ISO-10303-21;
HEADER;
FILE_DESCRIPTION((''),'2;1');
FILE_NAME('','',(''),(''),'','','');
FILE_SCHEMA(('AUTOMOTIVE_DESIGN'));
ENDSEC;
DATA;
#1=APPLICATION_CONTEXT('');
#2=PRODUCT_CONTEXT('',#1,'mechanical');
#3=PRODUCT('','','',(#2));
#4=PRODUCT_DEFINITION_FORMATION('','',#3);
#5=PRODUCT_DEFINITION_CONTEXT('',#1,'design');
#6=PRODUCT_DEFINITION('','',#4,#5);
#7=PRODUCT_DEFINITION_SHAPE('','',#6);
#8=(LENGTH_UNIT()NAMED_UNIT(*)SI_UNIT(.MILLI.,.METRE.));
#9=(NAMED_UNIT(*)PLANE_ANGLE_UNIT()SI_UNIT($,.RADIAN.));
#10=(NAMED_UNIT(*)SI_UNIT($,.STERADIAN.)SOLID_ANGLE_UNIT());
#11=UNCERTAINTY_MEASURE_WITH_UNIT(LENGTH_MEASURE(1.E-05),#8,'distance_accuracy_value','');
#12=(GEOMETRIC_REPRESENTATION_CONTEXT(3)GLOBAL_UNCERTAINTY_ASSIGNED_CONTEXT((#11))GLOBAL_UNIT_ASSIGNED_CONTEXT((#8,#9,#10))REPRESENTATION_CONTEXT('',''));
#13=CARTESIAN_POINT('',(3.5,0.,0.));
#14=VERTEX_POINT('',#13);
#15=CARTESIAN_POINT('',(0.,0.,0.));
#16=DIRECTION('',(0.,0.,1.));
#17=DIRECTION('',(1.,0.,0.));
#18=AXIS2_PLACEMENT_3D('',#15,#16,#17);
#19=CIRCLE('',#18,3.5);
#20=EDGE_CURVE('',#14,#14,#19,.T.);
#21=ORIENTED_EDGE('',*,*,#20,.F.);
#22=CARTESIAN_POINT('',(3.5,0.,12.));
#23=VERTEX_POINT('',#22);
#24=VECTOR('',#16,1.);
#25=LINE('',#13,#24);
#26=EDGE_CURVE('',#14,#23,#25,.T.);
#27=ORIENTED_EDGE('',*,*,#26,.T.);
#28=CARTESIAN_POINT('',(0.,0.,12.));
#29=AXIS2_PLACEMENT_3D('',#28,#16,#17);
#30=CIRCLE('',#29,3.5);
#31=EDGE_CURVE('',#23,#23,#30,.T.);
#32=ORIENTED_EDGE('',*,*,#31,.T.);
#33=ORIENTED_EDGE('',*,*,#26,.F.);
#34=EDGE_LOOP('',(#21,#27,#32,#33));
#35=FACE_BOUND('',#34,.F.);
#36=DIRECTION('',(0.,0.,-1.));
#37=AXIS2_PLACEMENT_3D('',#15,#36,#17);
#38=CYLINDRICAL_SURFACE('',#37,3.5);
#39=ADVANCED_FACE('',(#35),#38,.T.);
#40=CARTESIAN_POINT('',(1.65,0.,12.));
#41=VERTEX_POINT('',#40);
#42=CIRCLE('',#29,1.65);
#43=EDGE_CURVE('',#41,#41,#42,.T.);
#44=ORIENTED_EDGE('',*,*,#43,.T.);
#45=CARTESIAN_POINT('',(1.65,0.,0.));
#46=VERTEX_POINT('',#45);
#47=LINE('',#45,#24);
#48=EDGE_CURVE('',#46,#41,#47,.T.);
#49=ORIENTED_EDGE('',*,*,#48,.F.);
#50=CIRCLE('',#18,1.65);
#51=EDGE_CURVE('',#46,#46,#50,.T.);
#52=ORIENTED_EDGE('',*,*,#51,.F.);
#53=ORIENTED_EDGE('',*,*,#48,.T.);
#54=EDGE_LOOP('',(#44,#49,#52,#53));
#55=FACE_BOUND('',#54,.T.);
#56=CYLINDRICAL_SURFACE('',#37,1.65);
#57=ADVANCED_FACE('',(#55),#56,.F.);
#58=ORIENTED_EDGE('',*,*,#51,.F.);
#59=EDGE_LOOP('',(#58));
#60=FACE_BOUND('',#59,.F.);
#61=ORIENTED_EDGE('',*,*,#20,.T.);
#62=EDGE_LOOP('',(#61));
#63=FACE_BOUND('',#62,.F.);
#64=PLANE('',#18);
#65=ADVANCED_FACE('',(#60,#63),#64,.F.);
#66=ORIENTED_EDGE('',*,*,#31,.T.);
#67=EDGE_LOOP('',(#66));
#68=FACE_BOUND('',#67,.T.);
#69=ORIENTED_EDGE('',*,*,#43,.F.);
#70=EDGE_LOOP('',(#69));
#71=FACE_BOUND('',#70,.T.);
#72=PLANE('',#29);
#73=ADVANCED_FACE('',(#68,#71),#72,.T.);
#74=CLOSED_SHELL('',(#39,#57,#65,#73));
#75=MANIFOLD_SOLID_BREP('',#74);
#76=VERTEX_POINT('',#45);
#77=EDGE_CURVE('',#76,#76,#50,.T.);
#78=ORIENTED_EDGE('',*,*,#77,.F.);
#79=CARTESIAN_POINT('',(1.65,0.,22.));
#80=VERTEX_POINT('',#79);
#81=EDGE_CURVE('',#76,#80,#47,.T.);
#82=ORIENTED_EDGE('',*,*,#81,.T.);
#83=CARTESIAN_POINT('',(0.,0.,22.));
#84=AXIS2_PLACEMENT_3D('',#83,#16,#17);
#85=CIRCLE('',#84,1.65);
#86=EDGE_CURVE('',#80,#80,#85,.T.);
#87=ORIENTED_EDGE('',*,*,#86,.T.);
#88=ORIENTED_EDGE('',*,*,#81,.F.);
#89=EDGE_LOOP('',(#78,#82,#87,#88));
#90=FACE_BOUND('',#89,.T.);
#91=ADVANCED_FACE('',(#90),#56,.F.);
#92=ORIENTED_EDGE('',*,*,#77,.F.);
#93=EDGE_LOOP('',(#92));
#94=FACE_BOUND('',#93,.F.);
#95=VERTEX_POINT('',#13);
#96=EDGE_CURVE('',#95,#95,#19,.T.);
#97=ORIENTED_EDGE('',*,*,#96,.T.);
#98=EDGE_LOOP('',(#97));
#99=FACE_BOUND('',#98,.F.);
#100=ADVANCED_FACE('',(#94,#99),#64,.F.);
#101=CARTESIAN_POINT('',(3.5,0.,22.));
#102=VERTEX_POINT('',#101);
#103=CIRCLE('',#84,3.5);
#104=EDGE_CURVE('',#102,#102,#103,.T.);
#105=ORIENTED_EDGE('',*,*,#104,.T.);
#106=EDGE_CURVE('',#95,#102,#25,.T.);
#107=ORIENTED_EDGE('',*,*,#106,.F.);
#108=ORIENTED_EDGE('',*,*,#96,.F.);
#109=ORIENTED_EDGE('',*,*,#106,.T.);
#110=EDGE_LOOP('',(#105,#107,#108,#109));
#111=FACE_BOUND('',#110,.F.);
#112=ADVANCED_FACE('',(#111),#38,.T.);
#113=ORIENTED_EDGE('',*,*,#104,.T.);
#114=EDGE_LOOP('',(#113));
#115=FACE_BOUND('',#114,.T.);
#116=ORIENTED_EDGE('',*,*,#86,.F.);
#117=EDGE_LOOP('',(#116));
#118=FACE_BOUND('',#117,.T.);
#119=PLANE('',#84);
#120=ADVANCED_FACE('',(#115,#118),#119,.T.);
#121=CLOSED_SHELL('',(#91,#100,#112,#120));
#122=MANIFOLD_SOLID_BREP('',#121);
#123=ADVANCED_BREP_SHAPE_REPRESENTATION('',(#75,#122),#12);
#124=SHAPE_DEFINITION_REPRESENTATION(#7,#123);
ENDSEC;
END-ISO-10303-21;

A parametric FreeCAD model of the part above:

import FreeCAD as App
import Part
import Sketcher

doc = App.newDocument("Part")
params = doc.addObject("Spreadsheet::Sheet", "Params")
for row, (alias, value) in enumerate([
    ("sketch1_diameter", "7 mm"),
    ("sketch1_diameter2", "3.3 mm"),
    ("pad1_length", "22 mm"),
    ("sketch2_diameter", "7 mm"),
    ("sketch2_diameter2", "3.3 mm"),
    ("pad2_length", "12 mm"),
], start=1):
    params.set(f"A{row}", alias)
    params.set(f"B{row}", "=" + value)
    params.setAlias(f"B{row}", alias)

body = doc.addObject("PartDesign::Body", "Body")

sketch1 = body.newObject("Sketcher::SketchObject", "Sketch")
sketch1.AttachmentSupport = (doc.getObject("XY_Plane"), [""])
sketch1.MapMode = "FlatFace"
sketch1.addGeometry(Part.Circle(App.Vector(0, 0, 0), App.Vector(0, 0, 1), 3.5), False)
sketch1.addGeometry(Part.Circle(App.Vector(0, 0, 0), App.Vector(0, 0, 1), 1.6), False)
sketch1.addConstraint(Sketcher.Constraint("Coincident", 0, 3, -1, 1))
sketch1.addConstraint(Sketcher.Constraint("Coincident", 1, 3, -1, 1))
sketch1.addConstraint(Sketcher.Constraint("Diameter", 0, 7.0))
sketch1.addConstraint(Sketcher.Constraint("Diameter", 1, 3.3))
sketch1.setExpression("Constraints[2]", "Params.sketch1_diameter")
sketch1.setExpression("Constraints[3]", "Params.sketch1_diameter2")
pad1 = body.newObject("PartDesign::Pad", "Pad")
pad1.Profile = sketch1
pad1.setExpression("Length", "Params.pad1_length")
body2 = doc.addObject("PartDesign::Body", "Body001")

sketch2 = body2.newObject("Sketcher::SketchObject", "Sketch001")
sketch2.AttachmentSupport = (doc.getObject("XY_Plane001"), [""])
sketch2.MapMode = "FlatFace"
sketch2.addGeometry(Part.Circle(App.Vector(0, 0, 0), App.Vector(0, 0, 1), 3.5), False)
sketch2.addGeometry(Part.Circle(App.Vector(0, 0, 0), App.Vector(0, 0, 1), 1.6), False)
sketch2.addConstraint(Sketcher.Constraint("Coincident", 0, 3, -1, 1))
sketch2.addConstraint(Sketcher.Constraint("Coincident", 1, 3, -1, 1))
sketch2.addConstraint(Sketcher.Constraint("Diameter", 0, 7.0))
sketch2.addConstraint(Sketcher.Constraint("Diameter", 1, 3.3))
sketch2.setExpression("Constraints[2]", "Params.sketch2_diameter")
sketch2.setExpression("Constraints[3]", "Params.sketch2_diameter2")
pad2 = body2.newObject("PartDesign::Pad", "Pad001")
pad2.Profile = sketch2
pad2.setExpression("Length", "Params.pad2_length")

doc.recompute()
